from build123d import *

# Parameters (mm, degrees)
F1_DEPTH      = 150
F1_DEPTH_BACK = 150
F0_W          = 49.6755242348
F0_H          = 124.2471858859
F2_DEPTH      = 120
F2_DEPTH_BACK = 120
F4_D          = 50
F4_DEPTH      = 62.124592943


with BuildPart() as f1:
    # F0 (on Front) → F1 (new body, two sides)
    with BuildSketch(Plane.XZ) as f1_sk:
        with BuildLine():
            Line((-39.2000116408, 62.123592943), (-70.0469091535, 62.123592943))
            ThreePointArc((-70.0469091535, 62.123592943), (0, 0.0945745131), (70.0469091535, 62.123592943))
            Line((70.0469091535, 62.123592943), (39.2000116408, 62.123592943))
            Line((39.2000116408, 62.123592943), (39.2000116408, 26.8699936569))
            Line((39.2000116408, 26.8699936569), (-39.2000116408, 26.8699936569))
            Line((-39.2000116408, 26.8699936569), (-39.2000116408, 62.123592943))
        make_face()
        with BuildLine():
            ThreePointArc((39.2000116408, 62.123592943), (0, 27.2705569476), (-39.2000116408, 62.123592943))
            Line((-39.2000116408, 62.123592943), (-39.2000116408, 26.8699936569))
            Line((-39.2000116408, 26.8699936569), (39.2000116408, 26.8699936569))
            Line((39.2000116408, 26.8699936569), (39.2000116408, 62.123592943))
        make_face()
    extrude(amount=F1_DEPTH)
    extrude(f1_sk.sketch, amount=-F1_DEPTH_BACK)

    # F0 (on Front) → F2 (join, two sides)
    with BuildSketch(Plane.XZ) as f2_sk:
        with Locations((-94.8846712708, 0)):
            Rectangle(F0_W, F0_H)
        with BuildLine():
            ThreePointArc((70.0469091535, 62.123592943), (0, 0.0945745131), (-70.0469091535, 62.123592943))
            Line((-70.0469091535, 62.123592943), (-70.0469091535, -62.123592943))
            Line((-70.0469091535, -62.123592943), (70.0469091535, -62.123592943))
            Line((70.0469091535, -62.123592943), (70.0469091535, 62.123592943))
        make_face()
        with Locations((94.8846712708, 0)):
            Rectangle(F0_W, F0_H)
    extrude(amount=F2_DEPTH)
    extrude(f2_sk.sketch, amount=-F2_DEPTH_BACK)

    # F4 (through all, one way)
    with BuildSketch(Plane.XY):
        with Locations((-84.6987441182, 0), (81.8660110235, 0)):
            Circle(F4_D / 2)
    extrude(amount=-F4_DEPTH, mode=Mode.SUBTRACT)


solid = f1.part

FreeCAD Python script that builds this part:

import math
import FreeCAD as App
import Part
import Sketcher
Q = App.Units.Quantity

doc = App.newDocument("Part")
body = doc.addObject("PartDesign::Body", "Body")

# Sketch on XZ plane
sketch1 = body.newObject("Sketcher::SketchObject", "Sketch")
sketch1.AttachmentSupport = (doc.getObject("XZ_Plane"), [""])
sketch1.MapMode = "FlatFace"
sketch1.addGeometry(Part.LineSegment(App.Vector(-39, 62, 0), App.Vector(-70, 62, 0)), False)
sketch1.addGeometry(Part.ArcOfCircle(Part.Circle(App.Vector(0, 71, 0), App.Vector(0, 0, 1), 71), math.radians(-173), math.radians(-7)), False)
sketch1.addGeometry(Part.LineSegment(App.Vector(70, 62, 0), App.Vector(39, 62, 0)), False)
sketch1.addGeometry(Part.ArcOfCircle(Part.Circle(App.Vector(0, 67, 0), App.Vector(0, 0, 1), 39), math.radians(-173), math.radians(-7)), False)
sketch1.addConstraint(Sketcher.Constraint("Coincident", 0, 2, 1, 1))
sketch1.addConstraint(Sketcher.Constraint("Coincident", 1, 2, 2, 1))
sketch1.addConstraint(Sketcher.Constraint("Coincident", 2, 2, 3, 2))
sketch1.addConstraint(Sketcher.Constraint("Coincident", 3, 1, 0, 1))
sketch1.addConstraint(Sketcher.Constraint("Horizontal", 0))
sketch1.addConstraint(Sketcher.Constraint("Horizontal", 2))
sketch1.addConstraint(Sketcher.Constraint("Symmetric", 0, 2, 1, 2, -2))
sketch1.addConstraint(Sketcher.Constraint("PointOnObject", 3, 3, -2))
sketch1.addConstraint(Sketcher.Constraint("Radius", 1, Q("70.565107 mm")))
sketch1.addConstraint(Sketcher.Constraint("Radius", 3, Q("39.471096 mm")))
sketch1.addConstraint(Sketcher.Constraint("DistanceX", 0, 2, 0, 1, Q("30.846898 mm")))
sketch1.addConstraint(Sketcher.Constraint("DistanceY", -1, 1, 1, 3, Q("70.659681 mm")))
sketch1.addConstraint(Sketcher.Constraint("DistanceX", 0, 2, -1, 1, Q("70.046909 mm")))
pad1 = body.newObject("PartDesign::Pad", "Pad")
pad1.Profile = sketch1
pad1.Type = "TwoLengths"
pad1.Length = 150
pad1.Length2 = 150

# Sketch on XZ plane
sketch2 = body.newObject("Sketcher::SketchObject", "Sketch001")
sketch2.AttachmentSupport = (doc.getObject("XZ_Plane"), [""])
sketch2.MapMode = "FlatFace"
sketch2.addGeometry(Part.LineSegment(App.Vector(-120, 62, 0), App.Vector(-120, -62, 0)), False)
sketch2.addGeometry(Part.LineSegment(App.Vector(-120, -62, 0), App.Vector(120, -62, 0)), False)
sketch2.addGeometry(Part.LineSegment(App.Vector(120, -62, 0), App.Vector(120, 62, 0)), False)
sketch2.addGeometry(Part.LineSegment(App.Vector(120, 62, 0), App.Vector(70, 62, 0)), False)
sketch2.addGeometry(Part.ArcOfCircle(Part.Circle(App.Vector(0, 71, 0), App.Vector(0, 0, 1), 71), math.radians(-173), math.radians(-7)), False)
sketch2.addGeometry(Part.LineSegment(App.Vector(-70, 62, 0), App.Vector(-120, 62, 0)), False)
sketch2.addConstraint(Sketcher.Constraint("Coincident", 0, 2, 1, 1))
sketch2.addConstraint(Sketcher.Constraint("Coincident", 1, 2, 2, 1))
sketch2.addConstraint(Sketcher.Constraint("Coincident", 2, 2, 3, 1))
sketch2.addConstraint(Sketcher.Constraint("Coincident", 3, 2, 4, 2))
sketch2.addConstraint(Sketcher.Constraint("Coincident", 4, 1, 5, 1))
sketch2.addConstraint(Sketcher.Constraint("Coincident", 5, 2, 0, 1))
sketch2.addConstraint(Sketcher.Constraint("Vertical", 0))
sketch2.addConstraint(Sketcher.Constraint("Horizontal", 1))
sketch2.addConstraint(Sketcher.Constraint("Vertical", 2))
sketch2.addConstraint(Sketcher.Constraint("Horizontal", 3))
sketch2.addConstraint(Sketcher.Constraint("Horizontal", 5))
sketch2.addConstraint(Sketcher.Constraint("Symmetric", 0, 2, 2, 2, -1, 1))
sketch2.addConstraint(Sketcher.Constraint("Symmetric", 3, 2, 4, 1, -2))
sketch2.addConstraint(Sketcher.Constraint("Radius", 4, Q("70.565107 mm")))
sketch2.addConstraint(Sketcher.Constraint("DistanceX", 1, 1, 1, 2, Q("239.444867 mm")))
sketch2.addConstraint(Sketcher.Constraint("DistanceX", 3, 2, 3, 1, Q("49.675524 mm")))
sketch2.addConstraint(Sketcher.Constraint("DistanceY", 0, 2, 0, 1, Q("124.247186 mm")))
pad2 = body.newObject("PartDesign::Pad", "Pad001")
pad2.Profile = sketch2
pad2.Type = "TwoLengths"
pad2.Length = 120
pad2.Length2 = 120

# Sketch on XY plane
sketch3 = body.newObject("Sketcher::SketchObject", "Sketch002")
sketch3.AttachmentSupport = (doc.getObject("XY_Plane"), [""])
sketch3.MapMode = "FlatFace"
sketch3.addGeometry(Part.Circle(App.Vector(82, 0, 0), App.Vector(0, 0, 1), 25), False)
sketch3.addGeometry(Part.Circle(App.Vector(-85, 0, 0), App.Vector(0, 0, 1), 25), False)
sketch3.addConstraint(Sketcher.Constraint("Equal", 0, 1))
sketch3.addConstraint(Sketcher.Constraint("PointOnObject", 0, 3, -1))
sketch3.addConstraint(Sketcher.Constraint("PointOnObject", 1, 3, -1))
sketch3.addConstraint(Sketcher.Constraint("Diameter", 0, Q("50 mm")))
sketch3.addConstraint(Sketcher.Constraint("DistanceX", -1, 1, 0, 3, Q("81.866011 mm")))
sketch3.addConstraint(Sketcher.Constraint("DistanceX", 1, 3, -1, 1, Q("84.698744 mm")))
pocket1 = body.newObject("PartDesign::Pocket", "Pocket")
pocket1.Profile = sketch3
pocket1.Type = "ThroughAll"

doc.recompute()
